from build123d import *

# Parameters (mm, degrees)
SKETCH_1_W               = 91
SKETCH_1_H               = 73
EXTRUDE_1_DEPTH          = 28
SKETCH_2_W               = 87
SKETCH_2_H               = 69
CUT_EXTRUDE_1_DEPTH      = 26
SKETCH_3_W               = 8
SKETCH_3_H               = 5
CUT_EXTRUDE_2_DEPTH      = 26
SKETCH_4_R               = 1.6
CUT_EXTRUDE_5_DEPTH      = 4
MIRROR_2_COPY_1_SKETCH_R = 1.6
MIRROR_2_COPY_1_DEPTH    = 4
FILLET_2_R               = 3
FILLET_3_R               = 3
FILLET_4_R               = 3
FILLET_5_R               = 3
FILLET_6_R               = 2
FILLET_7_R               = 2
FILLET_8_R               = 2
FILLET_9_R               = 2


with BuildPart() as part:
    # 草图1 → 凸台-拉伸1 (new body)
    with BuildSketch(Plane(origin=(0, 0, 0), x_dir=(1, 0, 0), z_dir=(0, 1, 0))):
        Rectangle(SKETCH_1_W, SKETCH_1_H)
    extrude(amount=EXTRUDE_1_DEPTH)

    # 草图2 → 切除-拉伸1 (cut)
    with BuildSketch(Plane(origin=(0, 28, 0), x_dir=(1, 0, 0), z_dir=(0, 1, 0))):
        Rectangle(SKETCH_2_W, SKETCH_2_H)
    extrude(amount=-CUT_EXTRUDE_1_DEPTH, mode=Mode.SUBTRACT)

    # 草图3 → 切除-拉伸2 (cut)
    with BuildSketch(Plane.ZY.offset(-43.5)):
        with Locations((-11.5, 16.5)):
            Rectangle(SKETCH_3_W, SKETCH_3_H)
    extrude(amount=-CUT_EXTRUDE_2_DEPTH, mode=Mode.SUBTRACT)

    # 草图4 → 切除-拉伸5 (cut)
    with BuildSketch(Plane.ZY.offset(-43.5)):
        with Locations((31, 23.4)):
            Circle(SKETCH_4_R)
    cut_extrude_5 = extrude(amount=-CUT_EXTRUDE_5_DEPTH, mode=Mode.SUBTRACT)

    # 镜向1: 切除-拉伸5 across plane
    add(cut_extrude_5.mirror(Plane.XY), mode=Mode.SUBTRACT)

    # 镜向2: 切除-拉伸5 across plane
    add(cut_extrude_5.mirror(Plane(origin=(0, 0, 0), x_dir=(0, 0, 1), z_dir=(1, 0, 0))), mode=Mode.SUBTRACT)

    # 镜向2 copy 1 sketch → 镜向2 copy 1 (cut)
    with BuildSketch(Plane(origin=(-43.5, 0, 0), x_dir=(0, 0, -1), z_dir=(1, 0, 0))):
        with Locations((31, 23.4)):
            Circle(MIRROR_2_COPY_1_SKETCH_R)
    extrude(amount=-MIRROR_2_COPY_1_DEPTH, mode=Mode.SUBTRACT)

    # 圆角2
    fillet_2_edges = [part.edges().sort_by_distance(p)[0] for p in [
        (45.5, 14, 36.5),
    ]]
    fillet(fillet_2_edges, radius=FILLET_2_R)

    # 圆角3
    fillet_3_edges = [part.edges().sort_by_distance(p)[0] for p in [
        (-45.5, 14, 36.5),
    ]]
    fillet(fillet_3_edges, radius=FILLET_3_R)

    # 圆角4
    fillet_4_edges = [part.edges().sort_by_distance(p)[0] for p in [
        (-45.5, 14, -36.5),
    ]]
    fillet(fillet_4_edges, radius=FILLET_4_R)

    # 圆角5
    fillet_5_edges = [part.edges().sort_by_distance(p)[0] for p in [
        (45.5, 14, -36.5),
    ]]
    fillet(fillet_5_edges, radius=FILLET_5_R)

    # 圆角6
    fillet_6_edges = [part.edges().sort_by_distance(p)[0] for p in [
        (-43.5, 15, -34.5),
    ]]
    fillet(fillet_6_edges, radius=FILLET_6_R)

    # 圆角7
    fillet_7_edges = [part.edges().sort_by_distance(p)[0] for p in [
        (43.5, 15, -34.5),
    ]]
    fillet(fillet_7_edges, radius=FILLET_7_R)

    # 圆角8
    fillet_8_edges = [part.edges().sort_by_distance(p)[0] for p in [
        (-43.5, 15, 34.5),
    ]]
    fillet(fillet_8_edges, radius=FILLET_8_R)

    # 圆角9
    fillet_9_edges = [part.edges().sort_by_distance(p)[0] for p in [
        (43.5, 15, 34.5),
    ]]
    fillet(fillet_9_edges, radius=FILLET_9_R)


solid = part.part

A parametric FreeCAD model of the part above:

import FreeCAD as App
import Part
import Sketcher


def edges_at(feature, points):
    """Names of the edges that pass closest to the given points."""
    edges = feature.Shape.Edges
    near = lambda p: min(range(len(edges)), key=lambda i: edges[i].distToShape(Part.Vertex(*p))[0])
    return sorted({f"Edge{near(p) + 1}" for p in points})


def add_polygon(sketch, points):
    """Adds a closed chain of lines whose ends are joined by coincident constraints."""
    first, n = sketch.GeometryCount, len(points)
    for a, b in zip(points, points[1:] + points[:1]):
        sketch.addGeometry(Part.LineSegment(App.Vector(*a, 0), App.Vector(*b, 0)), False)
    for i in range(n):
        sketch.addConstraint(Sketcher.Constraint("Coincident", first + i, 2, first + (i + 1) % n, 1))

doc = App.newDocument("Part")
body = doc.addObject("PartDesign::Body", "Body")

# Sketch on XZ plane
sketch1 = doc.addObject("Sketcher::SketchObject", "Sketch")
body.addObject(sketch1)
sketch1.AttachmentSupport = (doc.XZ_Plane, [""])
sketch1.MapMode = "FlatFace"
add_polygon(sketch1, [(-46, -36), (-46, 36), (46, 36), (46, -36)])  # lines 0-3
sketch1.addConstraint(Sketcher.Constraint("Vertical", 0))
sketch1.addConstraint(Sketcher.Constraint("Horizontal", 1))
sketch1.addConstraint(Sketcher.Constraint("Vertical", 2))
sketch1.addConstraint(Sketcher.Constraint("Horizontal", 3))
sketch1.addConstraint(Sketcher.Constraint("Symmetric", 0, 2, 2, 2, -1, 1))
sketch1.addConstraint(Sketcher.Constraint("DistanceX", 1, 1, 1, 2, 91.0))
sketch1.addConstraint(Sketcher.Constraint("DistanceY", 0, 1, 0, 2, 73.0))
pad1 = doc.addObject("PartDesign::Pad", "Pad")
body.addObject(pad1)
pad1.Profile = sketch1
pad1.Length = 28
pad1.Reversed = True

# Sketch on XZ plane
sketch2 = doc.addObject("Sketcher::SketchObject", "Sketch001")
body.addObject(sketch2)
sketch2.AttachmentSupport = (doc.XZ_Plane, [""])
sketch2.MapMode = "FlatFace"
sketch2.AttachmentOffset = App.Placement(App.Vector(0, 0, -28), App.Rotation())
add_polygon(sketch2, [(-44, -34), (-44, 34), (44, 34), (44, -34)])  # lines 0-3
sketch2.addConstraint(Sketcher.Constraint("Vertical", 0))
sketch2.addConstraint(Sketcher.Constraint("Horizontal", 1))
sketch2.addConstraint(Sketcher.Constraint("Vertical", 2))
sketch2.addConstraint(Sketcher.Constraint("Horizontal", 3))
sketch2.addConstraint(Sketcher.Constraint("Symmetric", 0, 2, 2, 2, -1, 1))
sketch2.addConstraint(Sketcher.Constraint("DistanceX", 1, 1, 1, 2, 87.0))
sketch2.addConstraint(Sketcher.Constraint("DistanceY", 0, 1, 0, 2, 69.0))
pocket1 = doc.addObject("PartDesign::Pocket", "Pocket")
body.addObject(pocket1)
pocket1.Profile = sketch2
pocket1.Length = 26
pocket1.Reversed = True

# Sketch on YZ plane
sketch3 = doc.addObject("Sketcher::SketchObject", "Sketch002")
body.addObject(sketch3)
sketch3.AttachmentSupport = (doc.YZ_Plane, [""])
sketch3.MapMode = "FlatFace"
sketch3.AttachmentOffset = App.Placement(App.Vector(0, 0, 43.5), App.Rotation())
add_polygon(sketch3, [(19, -16), (14, -16), (14, -8), (19, -8)])  # lines 0-3
sketch3.addConstraint(Sketcher.Constraint("Horizontal", 0))
sketch3.addConstraint(Sketcher.Constraint("Vertical", 1))
sketch3.addConstraint(Sketcher.Constraint("Horizontal", 2))
sketch3.addConstraint(Sketcher.Constraint("Vertical", 3))
sketch3.addConstraint(Sketcher.Constraint("DistanceX", 0, 2, 0, 1, 5.0))
sketch3.addConstraint(Sketcher.Constraint("DistanceY", 1, 1, 1, 2, 8.0))
sketch3.addConstraint(Sketcher.Constraint("DistanceX", -1, 1, 0, 2, 14.0))
sketch3.addConstraint(Sketcher.Constraint("DistanceY", 0, 2, -1, 1, 15.5))
pocket2 = doc.addObject("PartDesign::Pocket", "Pocket001")
body.addObject(pocket2)
pocket2.Profile = sketch3
pocket2.Length = 26
pocket2.Reversed = True

# Sketch on YZ plane
sketch4 = doc.addObject("Sketcher::SketchObject", "Sketch003")
body.addObject(sketch4)
sketch4.AttachmentSupport = (doc.YZ_Plane, [""])
sketch4.MapMode = "FlatFace"
sketch4.AttachmentOffset = App.Placement(App.Vector(0, 0, 43.5), App.Rotation())
sketch4.addGeometry(Part.Circle(App.Vector(23.4, 31, 0), App.Vector(0, 0, 1), 1.6), False)
sketch4.addConstraint(Sketcher.Constraint("Diameter", 0, 3.2))
sketch4.addConstraint(Sketcher.Constraint("DistanceY", -1, 1, 0, 3, 31.0))
sketch4.addConstraint(Sketcher.Constraint("DistanceX", -1, 1, 0, 3, 23.4))
pocket3 = doc.addObject("PartDesign::Pocket", "Pocket002")
body.addObject(pocket3)
pocket3.Profile = sketch4
pocket3.Length = 4
pocket3.Reversed = True
doc.recompute()

mirrored = doc.addObject("PartDesign::Mirrored", "Mirrored")
body.addObject(mirrored)
mirrored.Originals = [pocket3]
mirrored.MirrorPlane = (doc.XY_Plane, [""])
body.Tip = mirrored
doc.recompute()

mirrored2 = doc.addObject("PartDesign::Mirrored", "Mirrored001")
body.addObject(mirrored2)
mirrored2.Originals = [pocket3]
mirrored2.MirrorPlane = (doc.YZ_Plane, [""])
body.Tip = mirrored2

# Sketch on YZ plane
sketch5 = doc.addObject("Sketcher::SketchObject", "Sketch004")
body.addObject(sketch5)
sketch5.AttachmentSupport = (doc.YZ_Plane, [""])
sketch5.MapMode = "FlatFace"
sketch5.AttachmentOffset = App.Placement(App.Vector(0, 0, -43.5), App.Rotation())
sketch5.addGeometry(Part.Circle(App.Vector(23.4, -31, 0), App.Vector(0, 0, 1), 1.6), False)
sketch5.addConstraint(Sketcher.Constraint("Diameter", 0, 3.2))
sketch5.addConstraint(Sketcher.Constraint("DistanceY", 0, 3, -1, 1, 31.0))
sketch5.addConstraint(Sketcher.Constraint("DistanceX", -1, 1, 0, 3, 23.4))
pocket4 = doc.addObject("PartDesign::Pocket", "Pocket003")
body.addObject(pocket4)
pocket4.Profile = sketch5
pocket4.Length = 4
doc.recompute()

fillet = doc.addObject("PartDesign::Fillet", "Fillet")
body.addObject(fillet)
fillet.Base = (pocket4, edges_at(pocket4, [(45.5, 14, 36.5)]))
fillet.Radius = 3
doc.recompute()

fillet2 = doc.addObject("PartDesign::Fillet", "Fillet001")
body.addObject(fillet2)
fillet2.Base = (fillet, edges_at(fillet, [(-45.5, 14, 36.5)]))
fillet2.Radius = 3
doc.recompute()

fillet3 = doc.addObject("PartDesign::Fillet", "Fillet002")
body.addObject(fillet3)
fillet3.Base = (fillet2, edges_at(fillet2, [(-45.5, 14, -36.5)]))
fillet3.Radius = 3
doc.recompute()

fillet4 = doc.addObject("PartDesign::Fillet", "Fillet003")
body.addObject(fillet4)
fillet4.Base = (fillet3, edges_at(fillet3, [(45.5, 14, -36.5)]))
fillet4.Radius = 3
doc.recompute()

fillet5 = doc.addObject("PartDesign::Fillet", "Fillet004")
body.addObject(fillet5)
fillet5.Base = (fillet4, edges_at(fillet4, [(-43.5, 15, -34.5)]))
fillet5.Radius = 2
doc.recompute()

fillet6 = doc.addObject("PartDesign::Fillet", "Fillet005")
body.addObject(fillet6)
fillet6.Base = (fillet5, edges_at(fillet5, [(43.5, 15, -34.5)]))
fillet6.Radius = 2
doc.recompute()

fillet7 = doc.addObject("PartDesign::Fillet", "Fillet006")
body.addObject(fillet7)
fillet7.Base = (fillet6, edges_at(fillet6, [(-43.5, 15, 34.5)]))
fillet7.Radius = 2
doc.recompute()

fillet8 = doc.addObject("PartDesign::Fillet", "Fillet007")
body.addObject(fillet8)
fillet8.Base = (fillet7, edges_at(fillet7, [(43.5, 15, 34.5)]))
fillet8.Radius = 2

doc.recompute()
